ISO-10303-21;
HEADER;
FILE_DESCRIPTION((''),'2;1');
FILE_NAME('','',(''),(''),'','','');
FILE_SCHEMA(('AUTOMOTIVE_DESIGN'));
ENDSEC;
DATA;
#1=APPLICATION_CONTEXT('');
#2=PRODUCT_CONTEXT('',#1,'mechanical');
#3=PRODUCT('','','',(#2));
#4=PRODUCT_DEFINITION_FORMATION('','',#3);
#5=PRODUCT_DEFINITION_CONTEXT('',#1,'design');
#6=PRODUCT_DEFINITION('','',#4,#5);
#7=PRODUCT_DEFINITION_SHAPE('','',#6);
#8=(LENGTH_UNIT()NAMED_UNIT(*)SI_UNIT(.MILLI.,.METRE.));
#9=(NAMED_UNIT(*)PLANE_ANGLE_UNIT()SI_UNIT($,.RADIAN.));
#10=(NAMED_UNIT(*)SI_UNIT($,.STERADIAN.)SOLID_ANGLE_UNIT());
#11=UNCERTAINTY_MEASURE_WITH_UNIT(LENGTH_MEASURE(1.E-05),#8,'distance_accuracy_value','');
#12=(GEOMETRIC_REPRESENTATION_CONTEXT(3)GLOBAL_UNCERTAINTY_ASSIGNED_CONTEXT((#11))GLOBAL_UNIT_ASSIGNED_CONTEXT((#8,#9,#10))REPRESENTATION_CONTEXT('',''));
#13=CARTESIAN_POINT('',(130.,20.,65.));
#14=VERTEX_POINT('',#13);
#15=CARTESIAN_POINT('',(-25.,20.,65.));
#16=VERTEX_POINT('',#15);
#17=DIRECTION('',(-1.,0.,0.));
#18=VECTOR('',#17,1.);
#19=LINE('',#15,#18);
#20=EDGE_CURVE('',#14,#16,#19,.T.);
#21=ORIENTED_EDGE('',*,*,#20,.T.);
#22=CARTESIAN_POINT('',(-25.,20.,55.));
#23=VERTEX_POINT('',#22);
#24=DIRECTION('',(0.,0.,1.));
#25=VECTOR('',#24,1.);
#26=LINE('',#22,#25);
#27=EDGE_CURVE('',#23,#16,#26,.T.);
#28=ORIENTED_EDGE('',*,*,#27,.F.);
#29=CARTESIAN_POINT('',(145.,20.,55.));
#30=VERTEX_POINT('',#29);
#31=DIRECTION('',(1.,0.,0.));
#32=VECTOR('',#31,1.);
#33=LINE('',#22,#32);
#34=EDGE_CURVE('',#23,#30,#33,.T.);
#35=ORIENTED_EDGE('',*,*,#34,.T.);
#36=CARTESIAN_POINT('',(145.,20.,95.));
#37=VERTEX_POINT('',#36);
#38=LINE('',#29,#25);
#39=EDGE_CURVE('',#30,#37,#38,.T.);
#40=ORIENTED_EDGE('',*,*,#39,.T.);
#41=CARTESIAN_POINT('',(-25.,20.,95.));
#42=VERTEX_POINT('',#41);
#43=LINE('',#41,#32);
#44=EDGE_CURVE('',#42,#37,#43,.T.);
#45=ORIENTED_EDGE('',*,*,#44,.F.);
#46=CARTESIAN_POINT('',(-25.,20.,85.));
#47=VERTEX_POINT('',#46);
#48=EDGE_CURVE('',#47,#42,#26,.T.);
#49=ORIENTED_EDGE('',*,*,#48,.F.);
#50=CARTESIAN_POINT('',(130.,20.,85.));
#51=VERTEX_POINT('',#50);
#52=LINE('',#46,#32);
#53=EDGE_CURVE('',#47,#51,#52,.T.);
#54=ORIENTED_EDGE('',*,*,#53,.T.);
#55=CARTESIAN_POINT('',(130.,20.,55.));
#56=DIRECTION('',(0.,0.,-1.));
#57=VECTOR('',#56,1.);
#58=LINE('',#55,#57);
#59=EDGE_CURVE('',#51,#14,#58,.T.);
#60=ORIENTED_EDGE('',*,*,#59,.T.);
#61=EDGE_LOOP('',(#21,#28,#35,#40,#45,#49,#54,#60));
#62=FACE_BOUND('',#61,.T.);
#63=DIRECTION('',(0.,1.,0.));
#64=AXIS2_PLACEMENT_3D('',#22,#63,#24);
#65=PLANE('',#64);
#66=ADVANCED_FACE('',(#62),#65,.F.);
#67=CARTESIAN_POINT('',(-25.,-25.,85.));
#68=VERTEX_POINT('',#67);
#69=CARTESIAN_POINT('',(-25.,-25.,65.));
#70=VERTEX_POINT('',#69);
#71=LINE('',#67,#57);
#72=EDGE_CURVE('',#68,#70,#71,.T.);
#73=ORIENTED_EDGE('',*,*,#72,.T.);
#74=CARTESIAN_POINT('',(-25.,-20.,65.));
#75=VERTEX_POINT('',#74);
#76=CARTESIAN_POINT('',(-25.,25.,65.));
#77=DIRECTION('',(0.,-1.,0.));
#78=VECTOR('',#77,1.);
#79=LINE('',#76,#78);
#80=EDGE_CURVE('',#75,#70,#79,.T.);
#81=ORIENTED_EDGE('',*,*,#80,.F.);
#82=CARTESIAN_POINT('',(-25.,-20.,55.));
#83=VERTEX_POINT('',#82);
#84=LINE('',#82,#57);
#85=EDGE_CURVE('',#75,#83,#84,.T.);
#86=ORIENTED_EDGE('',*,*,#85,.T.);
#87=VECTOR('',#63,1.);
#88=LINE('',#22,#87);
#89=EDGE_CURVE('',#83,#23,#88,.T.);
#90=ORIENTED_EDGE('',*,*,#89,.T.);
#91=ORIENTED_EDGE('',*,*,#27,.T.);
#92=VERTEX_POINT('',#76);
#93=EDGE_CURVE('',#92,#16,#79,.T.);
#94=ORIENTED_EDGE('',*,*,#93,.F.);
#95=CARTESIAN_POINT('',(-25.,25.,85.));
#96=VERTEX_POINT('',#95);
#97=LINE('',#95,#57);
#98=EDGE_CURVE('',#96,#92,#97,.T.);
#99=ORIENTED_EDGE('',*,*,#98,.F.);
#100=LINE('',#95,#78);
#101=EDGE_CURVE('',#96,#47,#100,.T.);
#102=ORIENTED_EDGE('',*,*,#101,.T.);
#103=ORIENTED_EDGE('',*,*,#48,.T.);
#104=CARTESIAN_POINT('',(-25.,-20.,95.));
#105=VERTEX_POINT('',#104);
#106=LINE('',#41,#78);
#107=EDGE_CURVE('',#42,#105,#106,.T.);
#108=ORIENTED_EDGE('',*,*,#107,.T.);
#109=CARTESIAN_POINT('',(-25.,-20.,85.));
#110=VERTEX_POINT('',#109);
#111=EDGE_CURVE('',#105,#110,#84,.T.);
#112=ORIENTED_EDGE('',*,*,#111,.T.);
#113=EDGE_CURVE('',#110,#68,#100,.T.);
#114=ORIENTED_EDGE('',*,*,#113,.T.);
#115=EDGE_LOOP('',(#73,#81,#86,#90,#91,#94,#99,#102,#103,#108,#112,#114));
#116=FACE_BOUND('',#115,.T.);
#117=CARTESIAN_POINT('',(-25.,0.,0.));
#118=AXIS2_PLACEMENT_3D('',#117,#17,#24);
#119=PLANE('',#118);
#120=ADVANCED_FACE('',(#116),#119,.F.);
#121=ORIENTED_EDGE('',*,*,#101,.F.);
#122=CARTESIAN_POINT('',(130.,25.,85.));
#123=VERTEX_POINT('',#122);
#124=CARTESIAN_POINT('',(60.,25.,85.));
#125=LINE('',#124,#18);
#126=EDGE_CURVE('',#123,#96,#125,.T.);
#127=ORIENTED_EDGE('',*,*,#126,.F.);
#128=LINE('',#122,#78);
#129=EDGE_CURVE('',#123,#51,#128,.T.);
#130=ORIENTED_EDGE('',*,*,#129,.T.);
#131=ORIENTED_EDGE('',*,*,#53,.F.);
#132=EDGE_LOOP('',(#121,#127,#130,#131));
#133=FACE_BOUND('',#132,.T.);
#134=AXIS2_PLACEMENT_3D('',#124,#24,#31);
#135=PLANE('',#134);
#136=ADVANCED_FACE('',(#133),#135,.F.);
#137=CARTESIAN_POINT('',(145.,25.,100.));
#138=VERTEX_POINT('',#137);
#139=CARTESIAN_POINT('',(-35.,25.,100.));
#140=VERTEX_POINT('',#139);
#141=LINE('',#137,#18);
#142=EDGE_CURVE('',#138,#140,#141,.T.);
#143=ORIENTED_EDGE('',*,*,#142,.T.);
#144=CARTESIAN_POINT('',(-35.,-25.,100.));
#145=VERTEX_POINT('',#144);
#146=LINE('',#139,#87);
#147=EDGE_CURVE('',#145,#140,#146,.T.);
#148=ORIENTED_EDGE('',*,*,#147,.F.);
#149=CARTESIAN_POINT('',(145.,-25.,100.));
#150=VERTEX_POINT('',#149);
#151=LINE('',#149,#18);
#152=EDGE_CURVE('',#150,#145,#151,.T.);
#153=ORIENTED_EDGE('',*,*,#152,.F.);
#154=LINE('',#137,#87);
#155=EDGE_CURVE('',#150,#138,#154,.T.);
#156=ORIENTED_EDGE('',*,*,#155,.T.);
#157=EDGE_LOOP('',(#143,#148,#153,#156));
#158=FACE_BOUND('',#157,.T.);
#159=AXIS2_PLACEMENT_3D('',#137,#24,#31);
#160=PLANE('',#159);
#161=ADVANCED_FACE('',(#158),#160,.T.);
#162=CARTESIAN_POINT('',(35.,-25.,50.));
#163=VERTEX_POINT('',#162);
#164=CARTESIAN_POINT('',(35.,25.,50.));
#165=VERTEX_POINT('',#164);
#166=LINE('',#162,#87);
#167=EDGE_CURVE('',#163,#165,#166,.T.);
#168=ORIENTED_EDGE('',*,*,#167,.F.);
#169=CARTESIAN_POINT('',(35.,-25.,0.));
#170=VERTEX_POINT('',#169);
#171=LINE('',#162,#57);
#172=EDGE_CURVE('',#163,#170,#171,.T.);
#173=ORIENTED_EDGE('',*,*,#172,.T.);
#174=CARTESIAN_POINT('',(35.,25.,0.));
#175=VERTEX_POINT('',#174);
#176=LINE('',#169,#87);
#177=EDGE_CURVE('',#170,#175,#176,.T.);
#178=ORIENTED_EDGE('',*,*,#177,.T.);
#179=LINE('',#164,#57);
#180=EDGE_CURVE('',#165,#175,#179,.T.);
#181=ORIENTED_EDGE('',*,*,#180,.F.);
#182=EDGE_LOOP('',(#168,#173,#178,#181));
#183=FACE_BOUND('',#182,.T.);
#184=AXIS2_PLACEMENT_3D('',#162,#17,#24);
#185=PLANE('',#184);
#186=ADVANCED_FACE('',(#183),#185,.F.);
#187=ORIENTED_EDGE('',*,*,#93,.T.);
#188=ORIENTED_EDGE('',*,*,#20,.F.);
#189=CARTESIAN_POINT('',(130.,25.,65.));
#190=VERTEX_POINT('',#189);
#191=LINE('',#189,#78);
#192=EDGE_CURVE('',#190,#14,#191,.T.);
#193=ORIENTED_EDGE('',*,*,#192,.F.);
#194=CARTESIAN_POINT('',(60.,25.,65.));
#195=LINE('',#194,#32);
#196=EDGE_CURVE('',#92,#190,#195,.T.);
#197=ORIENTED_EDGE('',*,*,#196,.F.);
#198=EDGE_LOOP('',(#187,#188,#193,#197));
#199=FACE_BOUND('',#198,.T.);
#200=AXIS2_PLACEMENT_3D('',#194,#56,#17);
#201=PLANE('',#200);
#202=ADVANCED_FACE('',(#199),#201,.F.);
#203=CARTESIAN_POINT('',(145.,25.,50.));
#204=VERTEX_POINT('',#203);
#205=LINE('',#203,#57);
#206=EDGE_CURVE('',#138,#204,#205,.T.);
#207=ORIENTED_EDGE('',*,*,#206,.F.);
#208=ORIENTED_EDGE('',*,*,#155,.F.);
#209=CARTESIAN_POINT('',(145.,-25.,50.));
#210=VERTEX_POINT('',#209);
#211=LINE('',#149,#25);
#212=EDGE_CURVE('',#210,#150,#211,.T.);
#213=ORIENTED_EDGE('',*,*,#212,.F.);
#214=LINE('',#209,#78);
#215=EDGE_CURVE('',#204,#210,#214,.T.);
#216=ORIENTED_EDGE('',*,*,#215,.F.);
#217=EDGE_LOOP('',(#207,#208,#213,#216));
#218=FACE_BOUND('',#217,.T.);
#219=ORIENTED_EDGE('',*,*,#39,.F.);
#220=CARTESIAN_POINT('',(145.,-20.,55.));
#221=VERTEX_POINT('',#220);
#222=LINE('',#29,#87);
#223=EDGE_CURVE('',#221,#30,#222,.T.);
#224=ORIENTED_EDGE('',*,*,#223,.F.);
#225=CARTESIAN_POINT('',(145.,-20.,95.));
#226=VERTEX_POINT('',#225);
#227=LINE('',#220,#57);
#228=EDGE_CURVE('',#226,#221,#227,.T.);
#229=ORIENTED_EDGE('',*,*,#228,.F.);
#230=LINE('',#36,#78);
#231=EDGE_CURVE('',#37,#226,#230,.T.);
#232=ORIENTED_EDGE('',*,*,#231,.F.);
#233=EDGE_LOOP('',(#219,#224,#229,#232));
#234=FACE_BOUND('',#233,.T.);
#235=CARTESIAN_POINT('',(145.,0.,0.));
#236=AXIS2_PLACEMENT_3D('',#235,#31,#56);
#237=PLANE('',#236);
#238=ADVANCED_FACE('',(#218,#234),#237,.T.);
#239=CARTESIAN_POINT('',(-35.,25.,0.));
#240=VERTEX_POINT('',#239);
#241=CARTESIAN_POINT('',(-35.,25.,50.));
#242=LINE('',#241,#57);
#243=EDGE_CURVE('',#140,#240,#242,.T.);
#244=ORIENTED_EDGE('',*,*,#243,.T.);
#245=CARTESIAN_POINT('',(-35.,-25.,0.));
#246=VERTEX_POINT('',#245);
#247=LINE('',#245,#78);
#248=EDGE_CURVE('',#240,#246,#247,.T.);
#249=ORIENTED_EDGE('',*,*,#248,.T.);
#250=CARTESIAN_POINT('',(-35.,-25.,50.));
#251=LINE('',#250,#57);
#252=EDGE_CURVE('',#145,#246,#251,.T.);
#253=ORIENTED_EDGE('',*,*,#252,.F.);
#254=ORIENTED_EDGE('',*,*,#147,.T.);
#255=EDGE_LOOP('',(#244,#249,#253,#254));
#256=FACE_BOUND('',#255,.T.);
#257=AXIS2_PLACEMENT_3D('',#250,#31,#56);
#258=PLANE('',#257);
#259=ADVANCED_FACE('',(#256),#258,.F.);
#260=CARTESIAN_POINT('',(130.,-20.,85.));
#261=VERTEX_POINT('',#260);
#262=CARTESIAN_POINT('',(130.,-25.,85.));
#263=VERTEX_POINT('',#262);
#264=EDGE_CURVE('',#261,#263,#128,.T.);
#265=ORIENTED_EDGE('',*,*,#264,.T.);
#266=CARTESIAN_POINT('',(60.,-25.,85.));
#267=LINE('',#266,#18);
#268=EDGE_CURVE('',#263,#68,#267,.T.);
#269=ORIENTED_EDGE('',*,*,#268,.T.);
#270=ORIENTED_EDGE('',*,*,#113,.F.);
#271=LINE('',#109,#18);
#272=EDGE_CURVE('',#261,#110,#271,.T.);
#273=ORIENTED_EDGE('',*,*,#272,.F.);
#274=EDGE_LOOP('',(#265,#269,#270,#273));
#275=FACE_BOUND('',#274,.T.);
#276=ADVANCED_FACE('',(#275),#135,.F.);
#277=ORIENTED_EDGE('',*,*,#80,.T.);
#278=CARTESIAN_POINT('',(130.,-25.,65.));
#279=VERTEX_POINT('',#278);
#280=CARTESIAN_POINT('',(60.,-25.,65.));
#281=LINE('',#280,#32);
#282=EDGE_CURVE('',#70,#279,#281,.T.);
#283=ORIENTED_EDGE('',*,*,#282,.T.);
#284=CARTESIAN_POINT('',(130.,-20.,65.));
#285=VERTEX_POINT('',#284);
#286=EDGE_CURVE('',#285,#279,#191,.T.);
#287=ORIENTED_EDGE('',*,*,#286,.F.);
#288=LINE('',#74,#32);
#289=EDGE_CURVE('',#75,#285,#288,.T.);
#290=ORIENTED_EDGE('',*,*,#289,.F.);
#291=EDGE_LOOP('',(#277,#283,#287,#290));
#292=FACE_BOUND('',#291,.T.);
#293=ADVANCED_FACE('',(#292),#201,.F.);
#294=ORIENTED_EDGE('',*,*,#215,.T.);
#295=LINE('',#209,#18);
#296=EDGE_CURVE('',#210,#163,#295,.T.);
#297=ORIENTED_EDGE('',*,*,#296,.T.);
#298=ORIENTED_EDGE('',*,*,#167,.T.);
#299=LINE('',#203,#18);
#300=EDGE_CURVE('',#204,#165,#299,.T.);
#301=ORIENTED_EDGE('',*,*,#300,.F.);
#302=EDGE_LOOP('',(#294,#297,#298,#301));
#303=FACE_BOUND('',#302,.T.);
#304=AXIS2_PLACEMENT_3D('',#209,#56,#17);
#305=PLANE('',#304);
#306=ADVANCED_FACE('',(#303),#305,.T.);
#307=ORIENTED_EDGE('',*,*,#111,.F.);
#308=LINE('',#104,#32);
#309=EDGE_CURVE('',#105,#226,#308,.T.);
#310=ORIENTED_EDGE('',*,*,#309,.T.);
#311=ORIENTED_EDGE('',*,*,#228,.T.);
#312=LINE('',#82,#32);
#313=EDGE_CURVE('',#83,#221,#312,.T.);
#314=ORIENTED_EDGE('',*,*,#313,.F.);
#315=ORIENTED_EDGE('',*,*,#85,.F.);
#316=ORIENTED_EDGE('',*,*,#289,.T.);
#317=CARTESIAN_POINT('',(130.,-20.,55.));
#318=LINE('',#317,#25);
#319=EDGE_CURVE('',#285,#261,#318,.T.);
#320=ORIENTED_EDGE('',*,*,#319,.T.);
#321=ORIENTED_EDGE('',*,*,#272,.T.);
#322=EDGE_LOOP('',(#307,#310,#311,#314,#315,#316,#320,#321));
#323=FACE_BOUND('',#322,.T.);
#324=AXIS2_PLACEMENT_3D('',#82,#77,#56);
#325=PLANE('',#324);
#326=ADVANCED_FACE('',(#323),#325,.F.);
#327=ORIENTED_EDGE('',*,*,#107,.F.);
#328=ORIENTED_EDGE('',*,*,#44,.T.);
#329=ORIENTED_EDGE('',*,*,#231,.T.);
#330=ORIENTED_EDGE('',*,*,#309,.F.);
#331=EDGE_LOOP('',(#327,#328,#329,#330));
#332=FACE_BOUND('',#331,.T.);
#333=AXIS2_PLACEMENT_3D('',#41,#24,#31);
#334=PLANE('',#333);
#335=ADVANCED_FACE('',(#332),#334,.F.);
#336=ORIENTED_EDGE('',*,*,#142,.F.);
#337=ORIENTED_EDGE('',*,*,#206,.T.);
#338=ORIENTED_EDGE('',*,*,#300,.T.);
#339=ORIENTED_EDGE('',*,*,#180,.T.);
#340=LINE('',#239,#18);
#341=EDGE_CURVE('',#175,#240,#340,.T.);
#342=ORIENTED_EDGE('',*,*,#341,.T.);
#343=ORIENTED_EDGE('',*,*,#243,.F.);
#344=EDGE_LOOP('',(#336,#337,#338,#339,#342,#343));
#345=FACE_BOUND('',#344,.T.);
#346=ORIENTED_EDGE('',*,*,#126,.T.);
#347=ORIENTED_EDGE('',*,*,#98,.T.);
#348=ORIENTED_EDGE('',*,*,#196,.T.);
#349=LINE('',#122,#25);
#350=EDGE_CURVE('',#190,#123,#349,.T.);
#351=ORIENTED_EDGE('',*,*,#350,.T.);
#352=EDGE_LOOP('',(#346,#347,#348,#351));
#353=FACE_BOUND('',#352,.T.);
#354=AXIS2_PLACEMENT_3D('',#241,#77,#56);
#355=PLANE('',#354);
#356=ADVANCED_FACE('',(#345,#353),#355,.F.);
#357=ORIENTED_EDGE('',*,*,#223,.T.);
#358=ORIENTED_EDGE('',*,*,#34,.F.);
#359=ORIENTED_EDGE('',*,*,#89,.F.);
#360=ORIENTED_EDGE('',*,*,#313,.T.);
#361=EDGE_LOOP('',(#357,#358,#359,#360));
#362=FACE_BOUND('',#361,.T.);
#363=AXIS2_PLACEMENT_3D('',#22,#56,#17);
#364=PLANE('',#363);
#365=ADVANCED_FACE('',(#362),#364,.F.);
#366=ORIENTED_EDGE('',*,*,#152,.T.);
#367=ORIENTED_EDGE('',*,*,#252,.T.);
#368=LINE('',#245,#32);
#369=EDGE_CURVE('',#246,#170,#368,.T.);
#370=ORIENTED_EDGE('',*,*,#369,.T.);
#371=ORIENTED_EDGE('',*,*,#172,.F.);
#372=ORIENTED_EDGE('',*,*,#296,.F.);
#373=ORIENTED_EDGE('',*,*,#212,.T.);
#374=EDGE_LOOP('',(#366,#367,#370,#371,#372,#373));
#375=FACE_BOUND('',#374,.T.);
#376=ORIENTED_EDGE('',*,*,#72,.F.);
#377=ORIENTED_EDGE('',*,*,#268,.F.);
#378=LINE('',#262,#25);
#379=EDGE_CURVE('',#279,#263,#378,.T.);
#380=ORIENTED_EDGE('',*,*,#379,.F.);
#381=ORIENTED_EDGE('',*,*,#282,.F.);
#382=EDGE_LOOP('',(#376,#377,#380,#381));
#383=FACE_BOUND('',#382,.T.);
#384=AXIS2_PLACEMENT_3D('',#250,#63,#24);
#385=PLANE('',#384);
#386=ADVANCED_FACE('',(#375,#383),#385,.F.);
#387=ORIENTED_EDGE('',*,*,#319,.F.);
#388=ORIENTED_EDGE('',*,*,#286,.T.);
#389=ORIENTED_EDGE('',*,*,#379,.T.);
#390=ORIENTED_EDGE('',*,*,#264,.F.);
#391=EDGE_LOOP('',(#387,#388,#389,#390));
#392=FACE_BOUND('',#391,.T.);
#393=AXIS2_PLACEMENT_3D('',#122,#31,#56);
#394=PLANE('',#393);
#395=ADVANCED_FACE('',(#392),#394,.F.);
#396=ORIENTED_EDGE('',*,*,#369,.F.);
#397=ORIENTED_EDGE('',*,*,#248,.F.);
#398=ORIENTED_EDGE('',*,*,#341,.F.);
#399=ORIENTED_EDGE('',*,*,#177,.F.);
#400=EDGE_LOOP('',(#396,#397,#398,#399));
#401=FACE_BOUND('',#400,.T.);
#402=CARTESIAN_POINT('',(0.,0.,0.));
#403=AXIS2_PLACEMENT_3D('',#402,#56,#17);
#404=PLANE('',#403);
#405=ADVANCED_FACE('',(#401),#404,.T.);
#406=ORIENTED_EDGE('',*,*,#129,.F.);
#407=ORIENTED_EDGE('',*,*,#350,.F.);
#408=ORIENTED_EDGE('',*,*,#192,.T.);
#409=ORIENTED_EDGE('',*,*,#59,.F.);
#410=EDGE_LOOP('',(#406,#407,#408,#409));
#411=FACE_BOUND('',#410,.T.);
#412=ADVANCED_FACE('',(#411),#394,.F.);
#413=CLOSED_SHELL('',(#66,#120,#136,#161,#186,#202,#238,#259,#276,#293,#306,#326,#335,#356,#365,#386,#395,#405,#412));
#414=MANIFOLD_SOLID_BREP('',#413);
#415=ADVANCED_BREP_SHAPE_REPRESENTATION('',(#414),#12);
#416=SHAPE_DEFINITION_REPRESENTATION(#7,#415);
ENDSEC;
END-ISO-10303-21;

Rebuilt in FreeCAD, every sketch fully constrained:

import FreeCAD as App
import Part
import Sketcher
from FreeCAD import Vector


def add_polygon(sketch, points):
    """Adds a closed chain of lines whose ends are joined by coincident constraints."""
    first, n = sketch.GeometryCount, len(points)
    for a, b in zip(points, points[1:] + points[:1]):
        sketch.addGeometry(Part.LineSegment(App.Vector(*a, 0), App.Vector(*b, 0)), False)
    for i in range(n):
        sketch.addConstraint(Sketcher.Constraint("Coincident", first + i, 2, first + (i + 1) % n, 1))

doc = App.newDocument("Part")
params = doc.addObject("Spreadsheet::Sheet", "Params")
for row, (alias, value) in enumerate([
    ("sketch1_width", "70 mm"),
    ("sketch1_height", "50 mm"),
    ("pad1_length", "50 mm"),
    ("sketch2_width", "50 mm"),
    ("pad2_length", "180 mm"),
    ("sketch3_width", "40 mm"),
    ("pocket1_length", "170 mm"),
    ("sketch4_width", "155 mm"),
    ("sketch4_height", "20 mm"),
    ("pocket2_length", "50 mm"),
], start=1):
    params.set(f"A{row}", alias)
    params.set(f"B{row}", "=" + value)
    params.setAlias(f"B{row}", alias)

body = doc.addObject("PartDesign::Body", "Body")

sketch1 = body.newObject("Sketcher::SketchObject", "Sketch")
sketch1.AttachmentSupport = (doc.getObject("XY_Plane"), [""])
sketch1.MapMode = "FlatFace"
add_polygon(sketch1, [(-35, 25), (-35, -25), (35, -25), (35, 25)])
sketch1.addConstraint(Sketcher.Constraint("Vertical", 0))
sketch1.addConstraint(Sketcher.Constraint("Horizontal", 1))
sketch1.addConstraint(Sketcher.Constraint("Vertical", 2))
sketch1.addConstraint(Sketcher.Constraint("Horizontal", 3))
sketch1.addConstraint(Sketcher.Constraint("Symmetric", 0, 2, 2, 2, -1, 1))
sketch1.addConstraint(Sketcher.Constraint("DistanceX", 1, 1, 1, 2, 70.0))
sketch1.addConstraint(Sketcher.Constraint("DistanceY", 0, 2, 0, 1, 50.0))
sketch1.setExpression("Constraints[9]", "Params.sketch1_width")
sketch1.setExpression("Constraints[10]", "Params.sketch1_height")
pad1 = body.newObject("PartDesign::Pad", "Pad")
pad1.Profile = sketch1
pad1.setExpression("Length", "Params.pad1_length")

sketch2 = body.newObject("Sketcher::SketchObject", "Sketch001")
sketch2.AttachmentSupport = (doc.getObject("YZ_Plane"), [""])
sketch2.MapMode = "FlatFace"
sketch2.AttachmentOffset = App.Placement(Vector(0, 0, -35), App.Rotation())
add_polygon(sketch2, [(25, 50), (-25, 50), (-25, 100), (25, 100)])
sketch2.addConstraint(Sketcher.Constraint("Horizontal", 0))
sketch2.addConstraint(Sketcher.Constraint("Vertical", 1))
sketch2.addConstraint(Sketcher.Constraint("Horizontal", 2))
sketch2.addConstraint(Sketcher.Constraint("Vertical", 3))
sketch2.addConstraint(Sketcher.Constraint("Equal", 2, 1))
sketch2.addConstraint(Sketcher.Constraint("DistanceX", 0, 2, 0, 1, 50.0))
sketch2.addConstraint(Sketcher.Constraint("DistanceX", 0, 2, -1, 1, 25.0))
sketch2.addConstraint(Sketcher.Constraint("DistanceY", -1, 1, 0, 2, 50.0))
sketch2.setExpression("Constraints[9]", "Params.sketch2_width")
pad2 = body.newObject("PartDesign::Pad", "Pad001")
pad2.Profile = sketch2
pad2.setExpression("Length", "Params.pad2_length")

sketch3 = body.newObject("Sketcher::SketchObject", "Sketch002")
sketch3.AttachmentSupport = (doc.getObject("YZ_Plane"), [""])
sketch3.MapMode = "FlatFace"
sketch3.AttachmentOffset = App.Placement(Vector(0, 0, 145), App.Rotation())
add_polygon(sketch3, [(20, 95), (-20, 95), (-20, 55), (20, 55)])
sketch3.addConstraint(Sketcher.Constraint("Horizontal", 0))
sketch3.addConstraint(Sketcher.Constraint("Vertical", 1))
sketch3.addConstraint(Sketcher.Constraint("Horizontal", 2))
sketch3.addConstraint(Sketcher.Constraint("Vertical", 3))
sketch3.addConstraint(Sketcher.Constraint("Equal", 2, 1))
sketch3.addConstraint(Sketcher.Constraint("DistanceX", 0, 2, 0, 1, 40.0))
sketch3.addConstraint(Sketcher.Constraint("DistanceX", 0, 2, -1, 1, 20.0))
sketch3.addConstraint(Sketcher.Constraint("DistanceY", -1, 1, 0, 2, 95.0))
sketch3.setExpression("Constraints[9]", "Params.sketch3_width")
pocket1 = body.newObject("PartDesign::Pocket", "Pocket")
pocket1.Profile = sketch3
pocket1.setExpression("Length", "Params.pocket1_length")

sketch4 = body.newObject("Sketcher::SketchObject", "Sketch003")
sketch4.AttachmentSupport = (doc.getObject("XZ_Plane"), [""])
sketch4.MapMode = "FlatFace"
sketch4.AttachmentOffset = App.Placement(Vector(0, 0, 25), App.Rotation())
add_polygon(sketch4, [(-25, 85), (-25, 65), (130, 65), (130, 85)])
sketch4.addConstraint(Sketcher.Constraint("Vertical", 0))
sketch4.addConstraint(Sketcher.Constraint("Horizontal", 1))
sketch4.addConstraint(Sketcher.Constraint("Vertical", 2))
sketch4.addConstraint(Sketcher.Constraint("Horizontal", 3))
sketch4.addConstraint(Sketcher.Constraint("DistanceX", 1, 1, 1, 2, 155.0))
sketch4.addConstraint(Sketcher.Constraint("DistanceY", 0, 2, 0, 1, 20.0))
sketch4.addConstraint(Sketcher.Constraint("DistanceX", 0, 2, -1, 1, 25.0))
sketch4.addConstraint(Sketcher.Constraint("DistanceY", -1, 1, 0, 2, 65.0))
sketch4.setExpression("Constraints[8]", "Params.sketch4_width")
sketch4.setExpression("Constraints[9]", "Params.sketch4_height")
pocket2 = body.newObject("PartDesign::Pocket", "Pocket001")
pocket2.Profile = sketch4
pocket2.setExpression("Length", "Params.pocket2_length")

doc.recompute()
